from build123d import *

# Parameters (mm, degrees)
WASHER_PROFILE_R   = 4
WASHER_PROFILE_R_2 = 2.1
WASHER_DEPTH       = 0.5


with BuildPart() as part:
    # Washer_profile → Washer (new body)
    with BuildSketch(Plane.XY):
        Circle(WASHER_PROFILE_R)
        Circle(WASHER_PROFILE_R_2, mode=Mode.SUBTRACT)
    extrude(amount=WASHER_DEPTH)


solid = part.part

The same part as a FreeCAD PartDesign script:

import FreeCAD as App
import Part
import Sketcher

doc = App.newDocument("Part")
body = doc.addObject("PartDesign::Body", "Body")

# Sketch on XY plane
sketch1 = body.newObject("Sketcher::SketchObject", "Sketch")
sketch1.AttachmentSupport = (doc.getObject("XY_Plane"), [""])
sketch1.MapMode = "FlatFace"
sketch1.addGeometry([
    Part.Circle(App.Vector(0, 0, 0), App.Vector(0, 0, 1), 4),
    Part.Circle(App.Vector(0, 0, 0), App.Vector(0, 0, 1), 2.1),
], False)
sketch1.addConstraint([
    Sketcher.Constraint("Coincident", 0, 3, -1, 1),
    Sketcher.Constraint("Coincident", 1, 3, -1, 1),
    Sketcher.Constraint("Diameter", 0, 8.0),
    Sketcher.Constraint("Diameter", 1, 4.2),
])
pad1 = body.newObject("PartDesign::Pad", "Pad")
pad1.Profile = sketch1
pad1.Length = 0.5

doc.recompute()
